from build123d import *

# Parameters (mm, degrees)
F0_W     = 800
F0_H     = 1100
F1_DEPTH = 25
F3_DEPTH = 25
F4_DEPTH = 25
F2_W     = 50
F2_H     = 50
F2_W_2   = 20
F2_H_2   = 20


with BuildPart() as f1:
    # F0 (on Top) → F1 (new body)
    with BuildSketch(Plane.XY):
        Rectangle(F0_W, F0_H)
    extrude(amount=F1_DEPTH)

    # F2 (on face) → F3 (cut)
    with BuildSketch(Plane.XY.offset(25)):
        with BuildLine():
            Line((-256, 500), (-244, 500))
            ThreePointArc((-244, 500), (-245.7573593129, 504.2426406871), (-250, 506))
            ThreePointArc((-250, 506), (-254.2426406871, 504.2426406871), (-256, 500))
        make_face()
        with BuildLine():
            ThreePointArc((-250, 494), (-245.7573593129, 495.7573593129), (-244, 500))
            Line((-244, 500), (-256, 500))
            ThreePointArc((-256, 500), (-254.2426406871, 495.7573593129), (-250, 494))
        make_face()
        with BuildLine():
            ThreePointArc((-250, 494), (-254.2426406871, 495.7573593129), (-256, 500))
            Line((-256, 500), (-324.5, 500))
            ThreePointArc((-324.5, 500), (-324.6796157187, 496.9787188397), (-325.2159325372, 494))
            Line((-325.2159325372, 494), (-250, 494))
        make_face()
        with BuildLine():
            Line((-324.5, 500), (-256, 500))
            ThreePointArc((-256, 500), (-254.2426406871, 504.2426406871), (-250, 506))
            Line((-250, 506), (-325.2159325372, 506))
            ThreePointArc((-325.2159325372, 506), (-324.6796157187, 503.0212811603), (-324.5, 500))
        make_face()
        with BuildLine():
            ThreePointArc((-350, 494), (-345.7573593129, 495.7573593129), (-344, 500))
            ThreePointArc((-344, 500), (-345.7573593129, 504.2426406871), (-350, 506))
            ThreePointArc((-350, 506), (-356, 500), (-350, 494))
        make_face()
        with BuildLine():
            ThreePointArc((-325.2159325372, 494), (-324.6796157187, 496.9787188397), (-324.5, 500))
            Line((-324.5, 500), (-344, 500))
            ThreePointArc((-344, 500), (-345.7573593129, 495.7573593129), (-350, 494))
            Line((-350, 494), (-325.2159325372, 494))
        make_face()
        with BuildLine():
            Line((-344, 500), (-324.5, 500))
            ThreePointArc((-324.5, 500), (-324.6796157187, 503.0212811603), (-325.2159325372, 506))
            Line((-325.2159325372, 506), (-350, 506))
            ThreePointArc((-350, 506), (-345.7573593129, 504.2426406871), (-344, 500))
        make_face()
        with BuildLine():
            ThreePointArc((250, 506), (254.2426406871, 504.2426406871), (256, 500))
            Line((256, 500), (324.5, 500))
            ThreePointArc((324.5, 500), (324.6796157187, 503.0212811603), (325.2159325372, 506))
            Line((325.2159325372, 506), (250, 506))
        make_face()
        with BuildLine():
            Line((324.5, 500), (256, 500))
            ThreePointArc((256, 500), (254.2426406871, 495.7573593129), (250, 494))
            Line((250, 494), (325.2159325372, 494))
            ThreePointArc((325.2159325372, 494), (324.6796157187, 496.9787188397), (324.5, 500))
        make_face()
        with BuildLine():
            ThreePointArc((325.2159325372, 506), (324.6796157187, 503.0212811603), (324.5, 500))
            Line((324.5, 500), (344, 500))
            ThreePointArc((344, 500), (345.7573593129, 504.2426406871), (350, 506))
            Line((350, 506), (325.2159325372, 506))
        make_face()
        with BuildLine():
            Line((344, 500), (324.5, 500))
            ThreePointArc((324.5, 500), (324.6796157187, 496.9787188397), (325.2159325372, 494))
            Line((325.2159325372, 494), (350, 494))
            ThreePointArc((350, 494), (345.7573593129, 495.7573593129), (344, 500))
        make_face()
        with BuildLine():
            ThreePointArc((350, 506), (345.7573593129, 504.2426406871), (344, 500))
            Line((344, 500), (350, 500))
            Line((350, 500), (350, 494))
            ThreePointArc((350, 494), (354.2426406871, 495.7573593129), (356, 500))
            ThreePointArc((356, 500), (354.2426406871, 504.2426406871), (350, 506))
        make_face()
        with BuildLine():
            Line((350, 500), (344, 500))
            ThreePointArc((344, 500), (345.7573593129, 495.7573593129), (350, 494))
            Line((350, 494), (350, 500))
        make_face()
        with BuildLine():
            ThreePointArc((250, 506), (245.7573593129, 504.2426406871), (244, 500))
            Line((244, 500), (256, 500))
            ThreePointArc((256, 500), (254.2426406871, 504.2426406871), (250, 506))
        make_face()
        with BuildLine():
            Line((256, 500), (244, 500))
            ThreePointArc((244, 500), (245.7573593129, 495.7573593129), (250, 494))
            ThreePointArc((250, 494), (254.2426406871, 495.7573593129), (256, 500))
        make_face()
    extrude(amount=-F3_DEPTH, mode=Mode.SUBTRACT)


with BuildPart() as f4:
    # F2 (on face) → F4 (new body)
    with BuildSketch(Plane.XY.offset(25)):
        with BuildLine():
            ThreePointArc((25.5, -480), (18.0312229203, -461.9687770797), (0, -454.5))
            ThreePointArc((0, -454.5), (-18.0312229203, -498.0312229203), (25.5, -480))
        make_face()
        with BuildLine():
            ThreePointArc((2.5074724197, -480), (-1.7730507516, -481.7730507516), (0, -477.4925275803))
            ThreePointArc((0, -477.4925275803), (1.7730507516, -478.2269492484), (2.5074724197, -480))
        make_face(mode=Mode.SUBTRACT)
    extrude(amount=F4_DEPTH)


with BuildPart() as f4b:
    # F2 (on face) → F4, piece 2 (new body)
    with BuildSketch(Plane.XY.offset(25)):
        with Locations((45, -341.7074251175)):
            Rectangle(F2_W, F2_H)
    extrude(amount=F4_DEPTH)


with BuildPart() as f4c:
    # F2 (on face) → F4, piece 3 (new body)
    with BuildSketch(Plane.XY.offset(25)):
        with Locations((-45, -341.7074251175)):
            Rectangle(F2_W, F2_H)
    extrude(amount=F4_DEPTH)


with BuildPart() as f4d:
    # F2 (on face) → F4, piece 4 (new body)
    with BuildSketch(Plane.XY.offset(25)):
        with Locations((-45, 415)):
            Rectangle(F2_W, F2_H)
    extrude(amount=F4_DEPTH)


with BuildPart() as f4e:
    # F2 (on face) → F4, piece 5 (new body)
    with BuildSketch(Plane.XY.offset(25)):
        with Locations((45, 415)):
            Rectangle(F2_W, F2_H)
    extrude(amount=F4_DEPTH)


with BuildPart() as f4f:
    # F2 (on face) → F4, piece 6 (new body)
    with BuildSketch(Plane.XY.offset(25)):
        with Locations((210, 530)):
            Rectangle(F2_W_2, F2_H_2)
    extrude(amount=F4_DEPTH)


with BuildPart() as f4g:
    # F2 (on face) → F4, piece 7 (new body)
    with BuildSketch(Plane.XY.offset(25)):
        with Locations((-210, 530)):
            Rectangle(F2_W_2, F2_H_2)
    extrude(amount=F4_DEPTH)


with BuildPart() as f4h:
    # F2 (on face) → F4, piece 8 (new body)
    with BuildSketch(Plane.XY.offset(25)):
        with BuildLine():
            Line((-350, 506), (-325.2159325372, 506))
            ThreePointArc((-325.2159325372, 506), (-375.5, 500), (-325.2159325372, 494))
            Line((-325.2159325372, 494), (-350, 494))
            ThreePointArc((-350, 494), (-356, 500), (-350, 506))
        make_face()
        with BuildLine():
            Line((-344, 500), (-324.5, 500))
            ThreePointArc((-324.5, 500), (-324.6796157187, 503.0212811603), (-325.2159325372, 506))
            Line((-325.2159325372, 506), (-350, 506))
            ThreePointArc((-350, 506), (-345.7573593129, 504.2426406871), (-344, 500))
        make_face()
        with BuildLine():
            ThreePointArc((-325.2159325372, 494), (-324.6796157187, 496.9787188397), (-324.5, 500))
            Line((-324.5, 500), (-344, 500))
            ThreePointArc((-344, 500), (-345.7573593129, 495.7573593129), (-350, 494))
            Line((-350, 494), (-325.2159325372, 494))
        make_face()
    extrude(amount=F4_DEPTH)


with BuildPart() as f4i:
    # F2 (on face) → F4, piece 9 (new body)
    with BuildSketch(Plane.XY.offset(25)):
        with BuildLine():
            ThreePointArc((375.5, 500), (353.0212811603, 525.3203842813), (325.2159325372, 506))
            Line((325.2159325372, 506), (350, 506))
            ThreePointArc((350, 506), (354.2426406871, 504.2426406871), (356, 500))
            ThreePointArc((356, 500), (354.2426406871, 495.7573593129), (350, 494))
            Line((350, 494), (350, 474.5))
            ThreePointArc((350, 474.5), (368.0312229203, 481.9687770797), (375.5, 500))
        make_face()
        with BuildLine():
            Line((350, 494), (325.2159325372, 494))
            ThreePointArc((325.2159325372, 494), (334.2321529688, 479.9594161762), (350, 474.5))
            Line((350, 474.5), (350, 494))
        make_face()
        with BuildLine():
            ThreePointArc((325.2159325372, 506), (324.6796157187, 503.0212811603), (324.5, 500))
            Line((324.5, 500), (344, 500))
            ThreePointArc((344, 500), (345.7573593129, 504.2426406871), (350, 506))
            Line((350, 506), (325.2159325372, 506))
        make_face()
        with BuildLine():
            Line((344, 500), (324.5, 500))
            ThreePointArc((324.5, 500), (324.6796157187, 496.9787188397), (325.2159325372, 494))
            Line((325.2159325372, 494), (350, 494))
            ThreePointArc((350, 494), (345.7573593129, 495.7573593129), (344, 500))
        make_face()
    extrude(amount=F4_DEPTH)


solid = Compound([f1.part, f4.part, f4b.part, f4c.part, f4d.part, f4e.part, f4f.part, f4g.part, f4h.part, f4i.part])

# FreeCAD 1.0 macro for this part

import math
import FreeCAD as App
import Part
import Sketcher
from FreeCAD import Vector


def add_polygon(sketch, points):
    """Adds a closed chain of lines whose ends are joined by coincident constraints."""
    first, n = sketch.GeometryCount, len(points)
    for a, b in zip(points, points[1:] + points[:1]):
        sketch.addGeometry(Part.LineSegment(App.Vector(*a, 0), App.Vector(*b, 0)), False)
    for i in range(n):
        sketch.addConstraint(Sketcher.Constraint("Coincident", first + i, 2, first + (i + 1) % n, 1))

doc = App.newDocument("Part")
body = doc.addObject("PartDesign::Body", "Body")

sketch1 = body.newObject("Sketcher::SketchObject", "Sketch")
sketch1.AttachmentSupport = (doc.getObject("XY_Plane"), [""])
sketch1.MapMode = "FlatFace"
add_polygon(sketch1, [(-400, 550), (-400, -550), (400, -550), (400, 550)])
sketch1.addConstraint([
    Sketcher.Constraint("Vertical", 0),
    Sketcher.Constraint("Horizontal", 1),
    Sketcher.Constraint("Vertical", 2),
    Sketcher.Constraint("Horizontal", 3),
    Sketcher.Constraint("Symmetric", 0, 2, 2, 2, -1, 1),
    Sketcher.Constraint("DistanceX", 1, 1, 1, 2, 800.0),
    Sketcher.Constraint("DistanceY", 0, 2, 0, 1, 1100.0),
])
pad1 = body.newObject("PartDesign::Pad", "Pad")
pad1.Profile = sketch1
pad1.Length = 25

sketch2 = body.newObject("Sketcher::SketchObject", "Sketch001")
sketch2.AttachmentSupport = (doc.getObject("XY_Plane"), [""])
sketch2.MapMode = "FlatFace"
sketch2.AttachmentOffset = App.Placement(Vector(0, 0, 25), App.Rotation())
sketch2.addGeometry([
    Part.ArcOfCircle(Part.Circle(Vector(-250, 500, 0), Vector(0, 0, 1), 6), math.radians(0), math.radians(90)),
    Part.LineSegment(Vector(-250, 506, 0), Vector(-350, 506, 0)),
    Part.ArcOfCircle(Part.Circle(Vector(-350, 500, 0), Vector(0, 0, 1), 6), math.radians(90), math.radians(270)),
    Part.LineSegment(Vector(-350, 494, 0), Vector(-250, 494, 0)),
    Part.ArcOfCircle(Part.Circle(Vector(-250, 500, 0), Vector(0, 0, 1), 6), math.radians(-90), math.radians(0)),
    Part.LineSegment(Vector(250, 494, 0), Vector(350, 494, 0)),
    Part.ArcOfCircle(Part.Circle(Vector(350, 500, 0), Vector(0, 0, 1), 6), math.radians(-90), math.radians(0)),
    Part.ArcOfCircle(Part.Circle(Vector(350, 500, 0), Vector(0, 0, 1), 6), math.radians(0), math.radians(90)),
    Part.LineSegment(Vector(350, 506, 0), Vector(250, 506, 0)),
    Part.ArcOfCircle(Part.Circle(Vector(250, 500, 0), Vector(0, 0, 1), 6), math.radians(90), math.radians(180)),
    Part.ArcOfCircle(Part.Circle(Vector(250, 500, 0), Vector(0, 0, 1), 6), math.radians(180), math.radians(270)),
], False)
sketch2.addConstraint([
    Sketcher.Constraint("Tangent", 0, 2, 1, 1),
    Sketcher.Constraint("Tangent", 1, 2, 2, 1),
    Sketcher.Constraint("Tangent", 2, 2, 3, 1),
    Sketcher.Constraint("Tangent", 3, 2, 4, 1),
    Sketcher.Constraint("Tangent", 4, 2, 0, 1),
    Sketcher.Constraint("Tangent", 5, 2, 6, 1),
    Sketcher.Constraint("Tangent", 6, 2, 7, 1),
    Sketcher.Constraint("Tangent", 7, 2, 8, 1),
    Sketcher.Constraint("Tangent", 8, 2, 9, 1),
    Sketcher.Constraint("Tangent", 9, 2, 10, 1),
    Sketcher.Constraint("Tangent", 10, 2, 5, 1),
    Sketcher.Constraint("Horizontal", 1),
    Sketcher.Constraint("Horizontal", 3),
    Sketcher.Constraint("Horizontal", 5),
    Sketcher.Constraint("Horizontal", 8),
    Sketcher.Constraint("Equal", 0, 2),
    Sketcher.Constraint("Equal", 4, 6),
    Sketcher.Constraint("Equal", 6, 7),
    Sketcher.Constraint("Equal", 7, 9),
    Sketcher.Constraint("Symmetric", 2, 3, 6, 3, -2),
    Sketcher.Constraint("Symmetric", 4, 2, 9, 2, -2),
    Sketcher.Constraint("Horizontal", 10, 3, 4, 2),
    Sketcher.Constraint("Horizontal", 4, 2, 6, 2),
    Sketcher.Constraint("Radius", 0, 6.0),
    Sketcher.Constraint("DistanceX", 1, 2, 1, 1, 100.0),
    Sketcher.Constraint("DistanceX", 0, 3, -1, 1, 250.0),
    Sketcher.Constraint("DistanceY", -1, 1, 0, 3, 500.0),
])
pocket1 = body.newObject("PartDesign::Pocket", "Pocket")
pocket1.Profile = sketch2
pocket1.Length = 25
body2 = doc.addObject("PartDesign::Body", "Body001")

sketch3 = body2.newObject("Sketcher::SketchObject", "Sketch002")
sketch3.AttachmentSupport = (doc.getObject("XY_Plane001"), [""])
sketch3.MapMode = "FlatFace"
sketch3.AttachmentOffset = App.Placement(Vector(0, 0, 25), App.Rotation())
sketch3.addGeometry([
    Part.ArcOfCircle(Part.Circle(Vector(0, -480, 0), Vector(0, 0, 1), 25.5), math.radians(0), math.radians(90)),
    Part.ArcOfCircle(Part.Circle(Vector(0, -480, 0), Vector(0, 0, 1), 25.5), math.radians(90), math.radians(360)),
    Part.ArcOfCircle(Part.Circle(Vector(0, -480, 0), Vector(0, 0, 1), 2.5), math.radians(0), math.radians(90)),
    Part.ArcOfCircle(Part.Circle(Vector(0, -480, 0), Vector(0, 0, 1), 2.5), math.radians(90), math.radians(360)),
], False)
sketch3.addConstraint([
    Sketcher.Constraint("Tangent", 0, 1, 1, 2),
    Sketcher.Constraint("Coincident", 1, 1, 0, 2),
    Sketcher.Constraint("Tangent", 2, 1, 3, 2),
    Sketcher.Constraint("Coincident", 3, 1, 2, 2),
    Sketcher.Constraint("Coincident", 2, 3, 0, 3),
    Sketcher.Constraint("PointOnObject", 0, 3, -2),
    Sketcher.Constraint("PointOnObject", 1, 1, -2),
    Sketcher.Constraint("PointOnObject", 3, 1, -2),
    Sketcher.Constraint("Horizontal", 3, 3, 0, 1),
    Sketcher.Constraint("Horizontal", 0, 1, 2, 1),
    Sketcher.Constraint("Radius", 0, 25.5),
    Sketcher.Constraint("DistanceY", 0, 3, -1, 1, 480.0),
    Sketcher.Constraint("Radius", 2, 2.507472),
])
pad2 = body2.newObject("PartDesign::Pad", "Pad001")
pad2.Profile = sketch3
pad2.Length = 25
body3 = doc.addObject("PartDesign::Body", "Body002")

sketch4 = body3.newObject("Sketcher::SketchObject", "Sketch003")
sketch4.AttachmentSupport = (doc.getObject("XY_Plane002"), [""])
sketch4.MapMode = "FlatFace"
sketch4.AttachmentOffset = App.Placement(Vector(0, 0, 25), App.Rotation())
add_polygon(sketch4, [(20, -317), (20, -367), (70, -367), (70, -317)])
sketch4.addConstraint([
    Sketcher.Constraint("Vertical", 0),
    Sketcher.Constraint("Horizontal", 1),
    Sketcher.Constraint("Vertical", 2),
    Sketcher.Constraint("Horizontal", 3),
    Sketcher.Constraint("Equal", 3, 0),
    Sketcher.Constraint("DistanceX", 1, 1, 1, 2, 50.0),
    Sketcher.Constraint("DistanceX", -1, 1, 0, 2, 20.0),
    Sketcher.Constraint("DistanceY", 0, 2, -1, 1, 366.707425),
])
pad3 = body3.newObject("PartDesign::Pad", "Pad002")
pad3.Profile = sketch4
pad3.Length = 25
body4 = doc.addObject("PartDesign::Body", "Body003")

sketch5 = body4.newObject("Sketcher::SketchObject", "Sketch004")
sketch5.AttachmentSupport = (doc.getObject("XY_Plane003"), [""])
sketch5.MapMode = "FlatFace"
sketch5.AttachmentOffset = App.Placement(Vector(0, 0, 25), App.Rotation())
add_polygon(sketch5, [(-70, -317), (-70, -367), (-20, -367), (-20, -317)])
sketch5.addConstraint([
    Sketcher.Constraint("Vertical", 0),
    Sketcher.Constraint("Horizontal", 1),
    Sketcher.Constraint("Vertical", 2),
    Sketcher.Constraint("Horizontal", 3),
    Sketcher.Constraint("Equal", 3, 0),
    Sketcher.Constraint("DistanceX", 1, 1, 1, 2, 50.0),
    Sketcher.Constraint("DistanceX", 0, 2, -1, 1, 70.0),
    Sketcher.Constraint("DistanceY", 0, 2, -1, 1, 366.707425),
])
pad4 = body4.newObject("PartDesign::Pad", "Pad003")
pad4.Profile = sketch5
pad4.Length = 25
body5 = doc.addObject("PartDesign::Body", "Body004")

sketch6 = body5.newObject("Sketcher::SketchObject", "Sketch005")
sketch6.AttachmentSupport = (doc.getObject("XY_Plane004"), [""])
sketch6.MapMode = "FlatFace"
sketch6.AttachmentOffset = App.Placement(Vector(0, 0, 25), App.Rotation())
add_polygon(sketch6, [(-70, 440), (-70, 390), (-20, 390), (-20, 440)])
sketch6.addConstraint([
    Sketcher.Constraint("Vertical", 0),
    Sketcher.Constraint("Horizontal", 1),
    Sketcher.Constraint("Vertical", 2),
    Sketcher.Constraint("Horizontal", 3),
    Sketcher.Constraint("Equal", 3, 0),
    Sketcher.Constraint("DistanceX", 1, 1, 1, 2, 50.0),
    Sketcher.Constraint("DistanceX", 0, 2, -1, 1, 70.0),
    Sketcher.Constraint("DistanceY", -1, 1, 0, 2, 390.0),
])
pad5 = body5.newObject("PartDesign::Pad", "Pad004")
pad5.Profile = sketch6
pad5.Length = 25
body6 = doc.addObject("PartDesign::Body", "Body005")

sketch7 = body6.newObject("Sketcher::SketchObject", "Sketch006")
sketch7.AttachmentSupport = (doc.getObject("XY_Plane005"), [""])
sketch7.MapMode = "FlatFace"
sketch7.AttachmentOffset = App.Placement(Vector(0, 0, 25), App.Rotation())
add_polygon(sketch7, [(20, 440), (20, 390), (70, 390), (70, 440)])
sketch7.addConstraint([
    Sketcher.Constraint("Vertical", 0),
    Sketcher.Constraint("Horizontal", 1),
    Sketcher.Constraint("Vertical", 2),
    Sketcher.Constraint("Horizontal", 3),
    Sketcher.Constraint("Equal", 3, 0),
    Sketcher.Constraint("DistanceX", 1, 1, 1, 2, 50.0),
    Sketcher.Constraint("DistanceX", -1, 1, 0, 2, 20.0),
    Sketcher.Constraint("DistanceY", -1, 1, 0, 2, 390.0),
])
pad6 = body6.newObject("PartDesign::Pad", "Pad005")
pad6.Profile = sketch7
pad6.Length = 25
body7 = doc.addObject("PartDesign::Body", "Body006")

sketch8 = body7.newObject("Sketcher::SketchObject", "Sketch007")
sketch8.AttachmentSupport = (doc.getObject("XY_Plane006"), [""])
sketch8.MapMode = "FlatFace"
sketch8.AttachmentOffset = App.Placement(Vector(0, 0, 25), App.Rotation())
add_polygon(sketch8, [(200, 540), (200, 520), (220, 520), (220, 540)])
sketch8.addConstraint([
    Sketcher.Constraint("Vertical", 0),
    Sketcher.Constraint("Horizontal", 1),
    Sketcher.Constraint("Vertical", 2),
    Sketcher.Constraint("Horizontal", 3),
    Sketcher.Constraint("Equal", 3, 0),
    Sketcher.Constraint("DistanceX", 1, 1, 1, 2, 20.0),
    Sketcher.Constraint("DistanceX", -1, 1, 0, 2, 200.0),
    Sketcher.Constraint("DistanceY", -1, 1, 0, 2, 520.0),
])
pad7 = body7.newObject("PartDesign::Pad", "Pad006")
pad7.Profile = sketch8
pad7.Length = 25
body8 = doc.addObject("PartDesign::Body", "Body007")

sketch9 = body8.newObject("Sketcher::SketchObject", "Sketch008")
sketch9.AttachmentSupport = (doc.getObject("XY_Plane007"), [""])
sketch9.MapMode = "FlatFace"
sketch9.AttachmentOffset = App.Placement(Vector(0, 0, 25), App.Rotation())
add_polygon(sketch9, [(-220, 540), (-220, 520), (-200, 520), (-200, 540)])
sketch9.addConstraint([
    Sketcher.Constraint("Vertical", 0),
    Sketcher.Constraint("Horizontal", 1),
    Sketcher.Constraint("Vertical", 2),
    Sketcher.Constraint("Horizontal", 3),
    Sketcher.Constraint("Equal", 3, 0),
    Sketcher.Constraint("DistanceX", 1, 1, 1, 2, 20.0),
    Sketcher.Constraint("DistanceX", 0, 2, -1, 1, 220.0),
    Sketcher.Constraint("DistanceY", -1, 1, 0, 2, 520.0),
])
pad8 = body8.newObject("PartDesign::Pad", "Pad007")
pad8.Profile = sketch9
pad8.Length = 25
body9 = doc.addObject("PartDesign::Body", "Body008")

sketch10 = body9.newObject("Sketcher::SketchObject", "Sketch009")
sketch10.AttachmentSupport = (doc.getObject("XY_Plane008"), [""])
sketch10.MapMode = "FlatFace"
sketch10.AttachmentOffset = App.Placement(Vector(0, 0, 25), App.Rotation())
sketch10.addGeometry([
    Part.ArcOfCircle(Part.Circle(Vector(-350, 500, 0), Vector(0, 0, 1), 26), math.radians(14), math.radians(346)),
    Part.ArcOfCircle(Part.Circle(Vector(-350, 500, 0), Vector(0, 0, 1), 25), math.radians(-13.61), math.radians(0)),
    Part.ArcOfCircle(Part.Circle(Vector(-350, 500, 0), Vector(0, 0, 1), 25), math.radians(0), math.radians(13.61)),
    Part.ArcOfCircle(Part.Circle(Vector(-350, 500, 0), Vector(0, 0, 1), 6), math.radians(90), math.radians(270)),
    Part.ArcOfCircle(Part.Circle(Vector(-350, 500, 0), Vector(0, 0, 1), 6), math.radians(0), math.radians(90)),
    Part.ArcOfCircle(Part.Circle(Vector(-350, 500, 0), Vector(0, 0, 1), 6), math.radians(-90), math.radians(0)),
], False)
sketch10.addConstraint([
    Sketcher.Constraint("Tangent", 0, 2, 1, 1),
    Sketcher.Constraint("Tangent", 1, 2, 2, 1),
    Sketcher.Constraint("Tangent", 2, 2, 0, 1),
    Sketcher.Constraint("Tangent", 3, 1, 4, 2),
    Sketcher.Constraint("Tangent", 4, 1, 5, 2),
    Sketcher.Constraint("Tangent", 5, 1, 3, 2),
    Sketcher.Constraint("Coincident", 3, 3, 0, 3),
    Sketcher.Constraint("Horizontal", 5, 3, 1, 2),
    Sketcher.Constraint("Horizontal", 2, 2, 3, 1),
    Sketcher.Constraint("Horizontal", 1, 2, 4, 1),
    Sketcher.Constraint("Horizontal", 0, 2, 5, 1),
    Sketcher.Constraint("Vertical", 5, 3, 3, 1),
    Sketcher.Constraint("Vertical", 3, 1, 5, 1),
    Sketcher.Constraint("Radius", 3, 6.0),
    Sketcher.Constraint("Radius", 0, 25.5),
    Sketcher.Constraint("DistanceX", 0, 3, -1, 1, 350.0),
    Sketcher.Constraint("DistanceY", -1, 1, 0, 3, 500.0),
])
pad9 = body9.newObject("PartDesign::Pad", "Pad008")
pad9.Profile = sketch10
pad9.Length = 25
body10 = doc.addObject("PartDesign::Body", "Body009")

sketch11 = body10.newObject("Sketcher::SketchObject", "Sketch010")
sketch11.AttachmentSupport = (doc.getObject("XY_Plane009"), [""])
sketch11.MapMode = "FlatFace"
sketch11.AttachmentOffset = App.Placement(Vector(0, 0, 25), App.Rotation())
sketch11.addGeometry([
    Part.ArcOfCircle(Part.Circle(Vector(350, 500, 0), Vector(0, 0, 1), 26), math.radians(0), math.radians(166)),
    Part.ArcOfCircle(Part.Circle(Vector(350, 500, 0), Vector(0, 0, 1), 25), math.radians(166.39), math.radians(180)),
    Part.ArcOfCircle(Part.Circle(Vector(350, 500, 0), Vector(0, 0, 1), 25), math.radians(180), math.radians(193.61)),
    Part.ArcOfCircle(Part.Circle(Vector(350, 500, 0), Vector(0, 0, 1), 26), math.radians(-166), math.radians(-90)),
    Part.ArcOfCircle(Part.Circle(Vector(350, 500, 0), Vector(0, 0, 1), 26), math.radians(-90), math.radians(0)),
    Part.ArcOfCircle(Part.Circle(Vector(350, 500, 0), Vector(0, 0, 1), 6), math.radians(90), math.radians(180)),
    Part.ArcOfCircle(Part.Circle(Vector(350, 500, 0), Vector(0, 0, 1), 6), math.radians(0), math.radians(90)),
    Part.ArcOfCircle(Part.Circle(Vector(350, 500, 0), Vector(0, 0, 1), 6), math.radians(-90), math.radians(0)),
    Part.ArcOfCircle(Part.Circle(Vector(350, 500, 0), Vector(0, 0, 1), 6), math.radians(180), math.radians(270)),
], False)
sketch11.addConstraint([
    Sketcher.Constraint("Tangent", 0, 2, 1, 1),
    Sketcher.Constraint("Tangent", 1, 2, 2, 1),
    Sketcher.Constraint("Tangent", 2, 2, 3, 1),
    Sketcher.Constraint("Tangent", 3, 2, 4, 1),
    Sketcher.Constraint("Tangent", 4, 2, 0, 1),
    Sketcher.Constraint("Tangent", 5, 1, 6, 2),
    Sketcher.Constraint("Tangent", 6, 1, 7, 2),
    Sketcher.Constraint("Tangent", 7, 1, 8, 2),
    Sketcher.Constraint("Tangent", 8, 1, 5, 2),
    Sketcher.Constraint("Coincident", 2, 3, 0, 3),
    Sketcher.Constraint("Coincident", 5, 3, 0, 3),
    Sketcher.Constraint("Equal", 5, 6),
    Sketcher.Constraint("Horizontal", 8, 3, 1, 2),
    Sketcher.Constraint("Horizontal", 1, 2, 4, 2),
    Sketcher.Constraint("Horizontal", 0, 2, 5, 1),
    Sketcher.Constraint("Horizontal", 4, 2, 6, 1),
    Sketcher.Constraint("Horizontal", 2, 2, 7, 1),
    Sketcher.Constraint("Horizontal", 6, 1, 8, 1),
    Sketcher.Constraint("Vertical", 8, 3, 3, 2),
    Sketcher.Constraint("Vertical", 3, 2, 5, 1),
    Sketcher.Constraint("Vertical", 5, 1, 7, 1),
    Sketcher.Constraint("Radius", 5, 6.0),
    Sketcher.Constraint("Radius", 0, 25.5),
    Sketcher.Constraint("DistanceX", -1, 1, 0, 3, 350.0),
    Sketcher.Constraint("DistanceY", -1, 1, 0, 3, 500.0),
])
pad10 = body10.newObject("PartDesign::Pad", "Pad009")
pad10.Profile = sketch11
pad10.Length = 25

doc.recompute()
